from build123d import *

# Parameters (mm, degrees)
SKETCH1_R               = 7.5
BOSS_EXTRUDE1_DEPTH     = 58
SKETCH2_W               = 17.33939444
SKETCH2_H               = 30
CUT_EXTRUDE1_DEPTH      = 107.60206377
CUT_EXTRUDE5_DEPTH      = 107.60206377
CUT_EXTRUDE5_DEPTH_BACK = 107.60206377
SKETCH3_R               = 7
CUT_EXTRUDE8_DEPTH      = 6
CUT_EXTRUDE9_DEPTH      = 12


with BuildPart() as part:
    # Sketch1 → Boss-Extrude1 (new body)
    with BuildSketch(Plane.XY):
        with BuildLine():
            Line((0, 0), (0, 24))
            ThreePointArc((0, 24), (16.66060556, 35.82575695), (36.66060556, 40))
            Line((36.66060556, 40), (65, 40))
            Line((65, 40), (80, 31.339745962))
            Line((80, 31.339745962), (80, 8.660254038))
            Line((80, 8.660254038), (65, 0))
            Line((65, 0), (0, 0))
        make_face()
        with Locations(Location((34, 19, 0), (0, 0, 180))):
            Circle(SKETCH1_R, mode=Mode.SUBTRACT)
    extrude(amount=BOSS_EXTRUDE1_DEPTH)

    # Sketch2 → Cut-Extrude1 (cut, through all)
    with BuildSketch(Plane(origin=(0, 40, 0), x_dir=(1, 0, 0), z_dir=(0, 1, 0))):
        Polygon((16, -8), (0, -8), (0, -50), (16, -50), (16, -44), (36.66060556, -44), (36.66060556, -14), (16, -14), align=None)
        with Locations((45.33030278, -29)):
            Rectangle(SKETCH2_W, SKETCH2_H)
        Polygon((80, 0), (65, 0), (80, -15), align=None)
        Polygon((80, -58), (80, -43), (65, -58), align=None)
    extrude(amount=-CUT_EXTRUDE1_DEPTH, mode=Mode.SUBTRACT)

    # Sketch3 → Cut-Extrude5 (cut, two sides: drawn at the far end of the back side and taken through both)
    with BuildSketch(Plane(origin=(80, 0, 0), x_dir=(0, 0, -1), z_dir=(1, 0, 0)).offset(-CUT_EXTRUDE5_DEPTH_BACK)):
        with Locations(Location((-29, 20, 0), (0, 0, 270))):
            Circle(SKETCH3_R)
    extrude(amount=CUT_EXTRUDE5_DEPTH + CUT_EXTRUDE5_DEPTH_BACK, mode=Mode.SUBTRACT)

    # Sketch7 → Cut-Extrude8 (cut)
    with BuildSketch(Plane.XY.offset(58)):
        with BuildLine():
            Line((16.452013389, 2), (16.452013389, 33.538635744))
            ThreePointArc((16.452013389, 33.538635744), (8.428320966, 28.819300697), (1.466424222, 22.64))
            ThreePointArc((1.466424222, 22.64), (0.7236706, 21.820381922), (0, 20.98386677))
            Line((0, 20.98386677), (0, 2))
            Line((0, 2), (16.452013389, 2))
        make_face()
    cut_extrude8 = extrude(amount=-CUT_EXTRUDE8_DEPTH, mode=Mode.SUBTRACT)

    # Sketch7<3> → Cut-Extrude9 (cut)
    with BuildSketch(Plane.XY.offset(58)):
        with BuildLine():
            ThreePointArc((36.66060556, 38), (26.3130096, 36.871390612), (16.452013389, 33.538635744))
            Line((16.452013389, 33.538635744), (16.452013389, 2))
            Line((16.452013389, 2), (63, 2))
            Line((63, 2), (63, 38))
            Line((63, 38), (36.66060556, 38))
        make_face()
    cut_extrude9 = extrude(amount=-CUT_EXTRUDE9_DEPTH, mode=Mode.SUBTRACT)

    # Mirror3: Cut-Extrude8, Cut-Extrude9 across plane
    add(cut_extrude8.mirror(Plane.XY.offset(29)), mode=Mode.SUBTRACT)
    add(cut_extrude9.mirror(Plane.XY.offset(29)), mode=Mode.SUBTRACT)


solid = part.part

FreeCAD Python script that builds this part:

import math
import FreeCAD as App
import Part
import Sketcher
Q = App.Units.Quantity


def add_polygon(sketch, points):
    """Adds a closed chain of lines whose ends are joined by coincident constraints."""
    first, n = sketch.GeometryCount, len(points)
    for a, b in zip(points, points[1:] + points[:1]):
        sketch.addGeometry(Part.LineSegment(App.Vector(*a, 0), App.Vector(*b, 0)), False)
    for i in range(n):
        sketch.addConstraint(Sketcher.Constraint("Coincident", first + i, 2, first + (i + 1) % n, 1))

doc = App.newDocument("Part")
body = doc.addObject("PartDesign::Body", "Body")

# Sketch on XY plane
sketch1 = doc.addObject("Sketcher::SketchObject", "Sketch")
body.addObject(sketch1)
sketch1.AttachmentSupport = (doc.XY_Plane, [""])
sketch1.MapMode = "FlatFace"
sketch1.addGeometry([
    Part.LineSegment(App.Vector(0, 24, 0), App.Vector(0, 0, 0)),  # 0
    Part.LineSegment(App.Vector(0, 0, 0), App.Vector(65, 0, 0)),  # 1
    Part.LineSegment(App.Vector(65, 0, 0), App.Vector(80, 8.660254, 0)),  # 2
    Part.LineSegment(App.Vector(80, 8.660254, 0), App.Vector(80, 31.339746, 0)),  # 3
    Part.LineSegment(App.Vector(80, 31.339746, 0), App.Vector(65, 40, 0)),  # 4
    Part.LineSegment(App.Vector(65, 40, 0), App.Vector(36.660606, 40, 0)),  # 5
    Part.ArcOfCircle(Part.Circle(App.Vector(36.660606, -10, 0), App.Vector(0, 0, 1), 50), math.radians(90), math.radians(137.156357)),  # 6
    Part.Circle(App.Vector(34, 19, 0), App.Vector(0, 0, 1), 7.5),  # 7
], False)
sketch1.addConstraint([
    Sketcher.Constraint("Coincident", 0, 2, 1, 1),
    Sketcher.Constraint("Coincident", 1, 2, 2, 1),
    Sketcher.Constraint("Coincident", 2, 2, 3, 1),
    Sketcher.Constraint("Coincident", 3, 2, 4, 1),
    Sketcher.Constraint("Coincident", 4, 2, 5, 1),
    Sketcher.Constraint("Tangent", 5, 2, 6, 1),
    Sketcher.Constraint("Coincident", 6, 2, 0, 1),
    Sketcher.Constraint("Vertical", 0),
    Sketcher.Constraint("Horizontal", 1),
    Sketcher.Constraint("Vertical", 3),
    Sketcher.Constraint("Horizontal", 5),
    Sketcher.Constraint("Coincident", 0, 2, -1, 1),
    Sketcher.Constraint("Vertical", 1, 2, 4, 2),
    Sketcher.Constraint("Equal", 2, 4),
    Sketcher.Constraint("Diameter", 7, 15.0),
    Sketcher.Constraint("Radius", 6, 50.0),
    Sketcher.Constraint("DistanceX", 1, 1, 1, 2, 65.0),
    Sketcher.Constraint("DistanceY", 0, 2, 0, 1, 24.0),
    Sketcher.Constraint("Angle", 2, Q("30 deg")),
    Sketcher.Constraint("DistanceY", 6, 3, -1, 1, 10.0),
    Sketcher.Constraint("DistanceX", -1, 1, 7, 3, 34.0),
    Sketcher.Constraint("DistanceY", -1, 1, 7, 3, 19.0),
    Sketcher.Constraint("DistanceX", -1, 1, 2, 2, 80.0),
])
pad1 = doc.addObject("PartDesign::Pad", "Pad")
body.addObject(pad1)
pad1.Profile = sketch1
pad1.Length = 58

# Sketch on XZ plane
sketch2 = doc.addObject("Sketcher::SketchObject", "Sketch001")
body.addObject(sketch2)
sketch2.AttachmentSupport = (doc.XZ_Plane, [""])
sketch2.MapMode = "FlatFace"
sketch2.AttachmentOffset = App.Placement(App.Vector(0, 0, -40), App.Rotation())
add_polygon(sketch2, [(16, 8), (0, 8), (0, 50), (16, 50), (16, 44), (54, 44), (54, 14), (16, 14)])  # lines 0-7
add_polygon(sketch2, [(80, 0), (65, 0), (80, 15)])  # lines 8-10
add_polygon(sketch2, [(80, 58), (80, 43), (65, 58)])  # lines 11-13
sketch2.addConstraint([
    Sketcher.Constraint("Horizontal", 0),
    Sketcher.Constraint("Vertical", 1),
    Sketcher.Constraint("Horizontal", 2),
    Sketcher.Constraint("Vertical", 3),
    Sketcher.Constraint("Horizontal", 4),
    Sketcher.Constraint("Vertical", 5),
    Sketcher.Constraint("Horizontal", 6),
    Sketcher.Constraint("Vertical", 7),
    Sketcher.Constraint("Horizontal", 8),
    Sketcher.Constraint("Vertical", 10),
    Sketcher.Constraint("Vertical", 11),
    Sketcher.Constraint("Horizontal", 13),
    Sketcher.Constraint("PointOnObject", 0, 2, -2),
    Sketcher.Constraint("PointOnObject", 8, 2, -1),
    Sketcher.Constraint("Perpendicular", 9, 12),
    Sketcher.Constraint("Vertical", 3, 2, 6, 2),
    Sketcher.Constraint("Vertical", 10, 2, 11, 2),
    Sketcher.Constraint("Vertical", 8, 2, 12, 2),
    Sketcher.Constraint("Equal", 3, 7),
    Sketcher.Constraint("Equal", 13, 10),
    Sketcher.Constraint("DistanceX", 0, 2, 0, 1, 16.0),
    Sketcher.Constraint("DistanceX", 4, 1, 4, 2, 38.0),
    Sketcher.Constraint("DistanceX", 8, 2, 8, 1, 15.0),
    Sketcher.Constraint("DistanceY", 1, 1, 1, 2, 42.0),
    Sketcher.Constraint("DistanceY", 3, 2, 3, 1, 6.0),
    Sketcher.Constraint("DistanceY", -1, 1, 0, 2, 8.0),
    Sketcher.Constraint("DistanceX", -1, 1, 8, 2, 65.0),
    Sketcher.Constraint("DistanceY", -1, 1, 11, 2, 43.0),
])
pocket1 = doc.addObject("PartDesign::Pocket", "Pocket")
body.addObject(pocket1)
pocket1.Profile = sketch2
pocket1.Type = "ThroughAll"
pocket1.Reversed = True

# Sketch on YZ plane
sketch3 = doc.addObject("Sketcher::SketchObject", "Sketch002")
body.addObject(sketch3)
sketch3.AttachmentSupport = (doc.YZ_Plane, [""])
sketch3.MapMode = "FlatFace"
sketch3.AttachmentOffset = App.Placement(App.Vector(0, 0, 80), App.Rotation())
sketch3.addGeometry(Part.Circle(App.Vector(20, 29, 0), App.Vector(0, 0, 1), 7), False)
sketch3.addConstraint([
    Sketcher.Constraint("Diameter", 0, 14.0),
    Sketcher.Constraint("DistanceX", -1, 1, 0, 3, 20.0),
    Sketcher.Constraint("DistanceY", -1, 1, 0, 3, 29.0),
])
pocket2 = doc.addObject("PartDesign::Pocket", "Pocket001")
body.addObject(pocket2)
pocket2.Profile = sketch3
pocket2.Type = "ThroughAll"
pocket2.Midplane = True

# Sketch on XY plane
sketch4 = doc.addObject("Sketcher::SketchObject", "Sketch003")
body.addObject(sketch4)
sketch4.AttachmentSupport = (doc.XY_Plane, [""])
sketch4.MapMode = "FlatFace"
sketch4.AttachmentOffset = App.Placement(App.Vector(0, 0, 58), App.Rotation())
sketch4.addGeometry([
    Part.LineSegment(App.Vector(16.452013, 2, 0), App.Vector(16.452013, 33.538636, 0)),  # 0
    Part.ArcOfCircle(Part.Circle(App.Vector(36.660606, -10, 0), App.Vector(0, 0, 1), 48), math.radians(114.898517), math.radians(137.156357)),  # 1
    Part.ArcOfCircle(Part.Circle(App.Vector(36.660608, -10.000002, 0), App.Vector(0, 0, 1), 48.000003), math.radians(137.156357), math.radians(139.797034)),  # 2
    Part.LineSegment(App.Vector(0, 20.983867, 0), App.Vector(0, 2, 0)),  # 3
    Part.LineSegment(App.Vector(0, 2, 0), App.Vector(16.452013, 2, 0)),  # 4
], False)
sketch4.addConstraint([
    Sketcher.Constraint("Coincident", 0, 2, 1, 1),
    Sketcher.Constraint("Tangent", 1, 2, 2, 1),
    Sketcher.Constraint("Coincident", 2, 2, 3, 1),
    Sketcher.Constraint("Coincident", 3, 2, 4, 1),
    Sketcher.Constraint("Coincident", 4, 2, 0, 1),
    Sketcher.Constraint("Vertical", 0),
    Sketcher.Constraint("Vertical", 3),
    Sketcher.Constraint("Horizontal", 4),
    Sketcher.Constraint("PointOnObject", 2, 2, -2),
    Sketcher.Constraint("Radius", 1, 48.0),
    Sketcher.Constraint("DistanceY", 1, 3, -1, 1, 10.0),
    Sketcher.Constraint("DistanceY", 2, 3, -1, 1, 10.000002),
    Sketcher.Constraint("DistanceY", -1, 1, 3, 2, 2.0),
    Sketcher.Constraint("DistanceY", -1, 1, 1, 2, 22.64),
    Sketcher.Constraint("DistanceX", 4, 1, 4, 2, 16.452013),
    Sketcher.Constraint("DistanceY", 0, 1, 0, 2, 31.538636),
])
pocket3 = doc.addObject("PartDesign::Pocket", "Pocket002")
body.addObject(pocket3)
pocket3.Profile = sketch4
pocket3.Length = 6

# Sketch on XY plane
sketch5 = doc.addObject("Sketcher::SketchObject", "Sketch004")
body.addObject(sketch5)
sketch5.AttachmentSupport = (doc.XY_Plane, [""])
sketch5.MapMode = "FlatFace"
sketch5.AttachmentOffset = App.Placement(App.Vector(0, 0, 58), App.Rotation())
sketch5.addGeometry([
    Part.ArcOfCircle(Part.Circle(App.Vector(36.660606, -10, 0), App.Vector(0, 0, 1), 48), math.radians(90), math.radians(114.898517)),  # 0
    Part.LineSegment(App.Vector(16.452013, 33.538636, 0), App.Vector(16.452013, 2, 0)),  # 1
    Part.LineSegment(App.Vector(16.452013, 2, 0), App.Vector(63, 2, 0)),  # 2
    Part.LineSegment(App.Vector(63, 2, 0), App.Vector(63, 38, 0)),  # 3
    Part.LineSegment(App.Vector(63, 38, 0), App.Vector(36.660606, 38, 0)),  # 4
], False)
sketch5.addConstraint([
    Sketcher.Constraint("Coincident", 0, 2, 1, 1),
    Sketcher.Constraint("Coincident", 1, 2, 2, 1),
    Sketcher.Constraint("Coincident", 2, 2, 3, 1),
    Sketcher.Constraint("Coincident", 3, 2, 4, 1),
    Sketcher.Constraint("Tangent", 4, 2, 0, 1),
    Sketcher.Constraint("Vertical", 1),
    Sketcher.Constraint("Horizontal", 2),
    Sketcher.Constraint("Vertical", 3),
    Sketcher.Constraint("Horizontal", 4),
    Sketcher.Constraint("Radius", 0, 48.0),
    Sketcher.Constraint("DistanceY", 3, 1, 3, 2, 36.0),
    Sketcher.Constraint("DistanceY", 0, 3, -1, 1, 10.0),
    Sketcher.Constraint("DistanceX", -1, 1, 2, 2, 63.0),
    Sketcher.Constraint("DistanceX", 2, 1, 2, 2, 46.547987),
    Sketcher.Constraint("DistanceX", 4, 2, 4, 1, 26.339394),
])
pocket4 = doc.addObject("PartDesign::Pocket", "Pocket003")
body.addObject(pocket4)
pocket4.Profile = sketch5
pocket4.Length = 12
doc.recompute()

datumplane = doc.addObject("PartDesign::Plane", "DatumPlane")
body.addObject(datumplane)
datumplane.AttachmentSupport = (doc.XY_Plane, [""])
datumplane.MapMode = "FlatFace"
datumplane.AttachmentOffset = App.Placement(App.Vector(0, 0, 29), App.Rotation())
mirrored = doc.addObject("PartDesign::Mirrored", "Mirrored")
body.addObject(mirrored)
mirrored.Originals = [pocket3, pocket4]
mirrored.MirrorPlane = (datumplane, [""])
body.Tip = mirrored

doc.recompute()
